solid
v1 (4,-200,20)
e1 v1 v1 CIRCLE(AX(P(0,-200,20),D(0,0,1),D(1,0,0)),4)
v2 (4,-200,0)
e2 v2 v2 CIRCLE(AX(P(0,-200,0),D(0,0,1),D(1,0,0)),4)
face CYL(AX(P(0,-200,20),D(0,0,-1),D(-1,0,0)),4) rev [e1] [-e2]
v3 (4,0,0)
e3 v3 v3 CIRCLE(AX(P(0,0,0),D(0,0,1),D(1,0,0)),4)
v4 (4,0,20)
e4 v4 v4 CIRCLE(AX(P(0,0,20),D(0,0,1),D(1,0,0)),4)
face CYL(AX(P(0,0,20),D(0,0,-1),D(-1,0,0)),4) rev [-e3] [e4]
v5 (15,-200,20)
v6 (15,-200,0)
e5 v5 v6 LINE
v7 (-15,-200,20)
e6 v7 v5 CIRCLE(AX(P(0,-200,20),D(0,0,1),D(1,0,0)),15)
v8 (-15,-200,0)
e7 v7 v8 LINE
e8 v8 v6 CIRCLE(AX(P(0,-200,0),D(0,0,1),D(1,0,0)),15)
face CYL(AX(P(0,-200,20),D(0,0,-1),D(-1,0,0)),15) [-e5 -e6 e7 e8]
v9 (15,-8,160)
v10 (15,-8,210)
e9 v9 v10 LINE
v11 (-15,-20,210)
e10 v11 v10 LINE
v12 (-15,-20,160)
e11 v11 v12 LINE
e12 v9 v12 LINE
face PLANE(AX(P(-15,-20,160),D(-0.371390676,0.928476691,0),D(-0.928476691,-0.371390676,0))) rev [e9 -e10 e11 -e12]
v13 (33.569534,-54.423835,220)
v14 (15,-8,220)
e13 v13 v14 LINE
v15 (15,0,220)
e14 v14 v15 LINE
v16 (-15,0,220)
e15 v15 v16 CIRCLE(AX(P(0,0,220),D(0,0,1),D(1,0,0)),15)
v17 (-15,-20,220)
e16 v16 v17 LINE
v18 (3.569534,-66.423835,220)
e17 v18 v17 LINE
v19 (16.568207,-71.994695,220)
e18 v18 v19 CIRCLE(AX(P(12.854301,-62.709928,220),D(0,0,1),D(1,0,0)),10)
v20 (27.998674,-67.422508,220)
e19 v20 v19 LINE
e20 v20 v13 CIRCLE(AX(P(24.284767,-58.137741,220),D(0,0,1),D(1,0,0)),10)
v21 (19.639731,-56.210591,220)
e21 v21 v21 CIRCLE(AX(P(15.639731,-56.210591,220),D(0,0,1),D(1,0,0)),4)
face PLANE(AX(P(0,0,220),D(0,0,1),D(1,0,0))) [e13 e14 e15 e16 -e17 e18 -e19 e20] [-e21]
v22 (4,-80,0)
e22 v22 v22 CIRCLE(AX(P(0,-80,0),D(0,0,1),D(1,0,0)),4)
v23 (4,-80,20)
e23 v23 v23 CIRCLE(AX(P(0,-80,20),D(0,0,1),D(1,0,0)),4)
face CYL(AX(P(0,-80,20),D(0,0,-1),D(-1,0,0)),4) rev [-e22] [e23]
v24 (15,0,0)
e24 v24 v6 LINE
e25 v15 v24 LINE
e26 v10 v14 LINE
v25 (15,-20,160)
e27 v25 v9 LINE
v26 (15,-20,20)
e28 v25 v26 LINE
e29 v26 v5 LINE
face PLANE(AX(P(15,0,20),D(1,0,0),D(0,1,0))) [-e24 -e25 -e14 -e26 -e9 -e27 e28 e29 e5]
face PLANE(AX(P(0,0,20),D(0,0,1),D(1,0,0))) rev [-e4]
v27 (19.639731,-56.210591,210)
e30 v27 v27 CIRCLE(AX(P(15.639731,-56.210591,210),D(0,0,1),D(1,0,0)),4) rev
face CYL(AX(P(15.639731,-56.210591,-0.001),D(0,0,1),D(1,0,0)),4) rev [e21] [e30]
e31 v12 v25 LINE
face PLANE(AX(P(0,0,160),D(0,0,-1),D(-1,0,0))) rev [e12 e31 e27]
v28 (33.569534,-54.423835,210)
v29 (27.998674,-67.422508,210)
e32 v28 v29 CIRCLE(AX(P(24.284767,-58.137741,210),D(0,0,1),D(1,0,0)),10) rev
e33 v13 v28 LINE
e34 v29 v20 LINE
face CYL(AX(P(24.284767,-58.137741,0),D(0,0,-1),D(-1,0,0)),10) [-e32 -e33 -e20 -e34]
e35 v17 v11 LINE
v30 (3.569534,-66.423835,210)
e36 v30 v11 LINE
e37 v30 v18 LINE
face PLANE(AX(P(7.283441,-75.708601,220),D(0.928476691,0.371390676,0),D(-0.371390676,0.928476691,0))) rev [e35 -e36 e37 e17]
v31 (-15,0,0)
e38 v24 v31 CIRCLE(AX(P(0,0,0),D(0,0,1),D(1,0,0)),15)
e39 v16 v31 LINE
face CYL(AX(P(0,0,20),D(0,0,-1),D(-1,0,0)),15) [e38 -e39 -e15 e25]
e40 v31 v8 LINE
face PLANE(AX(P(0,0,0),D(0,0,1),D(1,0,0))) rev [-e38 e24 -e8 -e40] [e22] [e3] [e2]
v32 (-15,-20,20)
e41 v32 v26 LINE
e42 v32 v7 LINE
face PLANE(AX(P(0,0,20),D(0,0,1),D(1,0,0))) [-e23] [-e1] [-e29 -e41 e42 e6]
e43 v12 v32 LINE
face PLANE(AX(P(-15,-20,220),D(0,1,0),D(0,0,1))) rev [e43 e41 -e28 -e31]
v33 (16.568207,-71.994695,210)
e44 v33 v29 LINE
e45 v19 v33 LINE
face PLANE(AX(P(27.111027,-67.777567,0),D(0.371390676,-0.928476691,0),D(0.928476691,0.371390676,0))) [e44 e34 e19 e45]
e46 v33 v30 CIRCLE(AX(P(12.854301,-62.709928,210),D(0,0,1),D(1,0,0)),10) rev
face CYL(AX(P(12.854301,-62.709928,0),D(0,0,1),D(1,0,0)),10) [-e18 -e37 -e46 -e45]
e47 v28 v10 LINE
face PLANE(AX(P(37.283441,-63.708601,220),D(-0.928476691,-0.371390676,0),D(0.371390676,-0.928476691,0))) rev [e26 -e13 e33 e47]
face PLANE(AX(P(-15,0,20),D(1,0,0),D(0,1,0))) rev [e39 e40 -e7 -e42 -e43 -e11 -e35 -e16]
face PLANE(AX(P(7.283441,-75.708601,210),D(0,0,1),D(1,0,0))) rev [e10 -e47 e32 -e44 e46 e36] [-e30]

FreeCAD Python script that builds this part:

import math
import FreeCAD as App
import Part
import Sketcher

V = App.Vector


def edges_at(feature, points):
    """Names of the edges that pass closest to the given points."""
    edges = feature.Shape.Edges
    near = lambda p: min(range(len(edges)), key=lambda i: edges[i].distToShape(Part.Vertex(*p))[0])
    return sorted({f"Edge{near(p) + 1}" for p in points})


def add_polygon(sketch, points):
    """Adds a closed chain of lines whose ends are joined by coincident constraints."""
    first, n = sketch.GeometryCount, len(points)
    for a, b in zip(points, points[1:] + points[:1]):
        sketch.addGeometry(Part.LineSegment(App.Vector(*a, 0), App.Vector(*b, 0)), False)
    for i in range(n):
        sketch.addConstraint(Sketcher.Constraint("Coincident", first + i, 2, first + (i + 1) % n, 1))

doc = App.newDocument("Part")
body = doc.addObject("PartDesign::Body", "Body")

# Sketch on XY plane
sketch1 = doc.addObject("Sketcher::SketchObject", "Sketch")
body.addObject(sketch1)
sketch1.AttachmentSupport = (doc.XY_Plane, [""])
sketch1.MapMode = "FlatFace"
sketch1.addGeometry(Part.ArcOfCircle(Part.Circle(V(0, 0, 0), V(0, 0, 1), 15), math.radians(0), math.radians(180)), False)
sketch1.addGeometry(Part.LineSegment(V(-15, 0, 0), V(-15, -200, 0)), False)
sketch1.addGeometry(Part.ArcOfCircle(Part.Circle(V(0, -200, 0), V(0, 0, 1), 15), math.radians(180), math.radians(360)), False)
sketch1.addGeometry(Part.LineSegment(V(15, -200, 0), V(15, 0, 0)), False)
sketch1.addGeometry(Part.Circle(V(0, 0, 0), V(0, 0, 1), 4), False)
sketch1.addGeometry(Part.Circle(V(0, -80, 0), V(0, 0, 1), 4), False)
sketch1.addGeometry(Part.Circle(V(0, -200, 0), V(0, 0, 1), 4), False)
sketch1.addConstraint(Sketcher.Constraint("Tangent", 0, 2, 1, 1))
sketch1.addConstraint(Sketcher.Constraint("Tangent", 1, 2, 2, 1))
sketch1.addConstraint(Sketcher.Constraint("Tangent", 2, 2, 3, 1))
sketch1.addConstraint(Sketcher.Constraint("Tangent", 3, 2, 0, 1))
sketch1.addConstraint(Sketcher.Constraint("Vertical", 1))
sketch1.addConstraint(Sketcher.Constraint("Vertical", 3))
sketch1.addConstraint(Sketcher.Constraint("Coincident", 0, 3, -1, 1))
sketch1.addConstraint(Sketcher.Constraint("Coincident", 4, 3, -1, 1))
sketch1.addConstraint(Sketcher.Constraint("Coincident", 6, 3, 2, 3))
sketch1.addConstraint(Sketcher.Constraint("Equal", 4, 5))
sketch1.addConstraint(Sketcher.Constraint("Equal", 5, 6))
sketch1.addConstraint(Sketcher.Constraint("PointOnObject", 5, 3, -2))
sketch1.addConstraint(Sketcher.Constraint("Diameter", 4, 8.0))
sketch1.addConstraint(Sketcher.Constraint("Radius", 0, 15.0))
sketch1.addConstraint(Sketcher.Constraint("DistanceY", 1, 2, 1, 1, 200.0))
sketch1.addConstraint(Sketcher.Constraint("DistanceY", 5, 3, -1, 1, 80.0))
pad1 = doc.addObject("PartDesign::Pad", "Pad")
body.addObject(pad1)
pad1.Profile = sketch1
pad1.Length = 20

# Sketch on XY plane
sketch2 = doc.addObject("Sketcher::SketchObject", "Sketch001")
body.addObject(sketch2)
sketch2.AttachmentSupport = (doc.XY_Plane, [""])
sketch2.MapMode = "FlatFace"
sketch2.AttachmentOffset = App.Placement(V(0, 0, 20), App.Rotation())
sketch2.addGeometry(Part.LineSegment(V(-15, 0, 0), V(-15, -20, 0)), False)
sketch2.addGeometry(Part.LineSegment(V(-15, -20, 0), V(15, -20, 0)), False)
sketch2.addGeometry(Part.LineSegment(V(15, -20, 0), V(15, 0, 0)), False)
sketch2.addGeometry(Part.ArcOfCircle(Part.Circle(V(0, 0, 0), V(0, 0, 1), 15), math.radians(0), math.radians(180)), False)
sketch2.addConstraint(Sketcher.Constraint("Coincident", 0, 2, 1, 1))
sketch2.addConstraint(Sketcher.Constraint("Coincident", 1, 2, 2, 1))
sketch2.addConstraint(Sketcher.Constraint("Tangent", 2, 2, 3, 1))
sketch2.addConstraint(Sketcher.Constraint("Tangent", 3, 2, 0, 1))
sketch2.addConstraint(Sketcher.Constraint("Vertical", 0))
sketch2.addConstraint(Sketcher.Constraint("Horizontal", 1))
sketch2.addConstraint(Sketcher.Constraint("Vertical", 2))
sketch2.addConstraint(Sketcher.Constraint("Coincident", 3, 3, -1, 1))
sketch2.addConstraint(Sketcher.Constraint("Radius", 3, 15.0))
sketch2.addConstraint(Sketcher.Constraint("DistanceY", 0, 2, 0, 1, 20.0))
pad2 = doc.addObject("PartDesign::Pad", "Pad001")
body.addObject(pad2)
pad2.Profile = sketch2
pad2.Length = 200

# Sketch on XY plane
sketch3 = doc.addObject("Sketcher::SketchObject", "Sketch002")
body.addObject(sketch3)
sketch3.AttachmentSupport = (doc.XY_Plane, [""])
sketch3.MapMode = "FlatFace"
sketch3.AttachmentOffset = App.Placement(V(0, 0, 220), App.Rotation())
add_polygon(sketch3, [(15, -8), (-15, -20), (15, -20)])  # lines 0-2
sketch3.addConstraint(Sketcher.Constraint("Horizontal", 1))
sketch3.addConstraint(Sketcher.Constraint("Vertical", 2))
sketch3.addConstraint(Sketcher.Constraint("DistanceX", 1, 1, 1, 2, 30.0))
sketch3.addConstraint(Sketcher.Constraint("DistanceY", 2, 1, 2, 2, 12.0))
sketch3.addConstraint(Sketcher.Constraint("DistanceX", 0, 2, -1, 1, 15.0))
sketch3.addConstraint(Sketcher.Constraint("DistanceY", 0, 2, -1, 1, 20.0))
pocket1 = doc.addObject("PartDesign::Pocket", "Pocket")
body.addObject(pocket1)
pocket1.Profile = sketch3
pocket1.Length = 60

# Sketch on an angled plane
sketch4 = doc.addObject("Sketcher::SketchObject", "Sketch003")
body.addObject(sketch4)
sketch4.Placement = App.Placement(V(-1.07285, -14.42914, 0), App.Rotation(V(0.928476691, 0.371390676, 0), V(0, 0, 1), V(0.371390676, -0.928476691, 0), "ZXY"))
add_polygon(sketch4, [(-15, 220), (-15, 210), (17, 210), (17, 220)])  # lines 0-3
sketch4.addConstraint(Sketcher.Constraint("Vertical", 0))
sketch4.addConstraint(Sketcher.Constraint("Horizontal", 1))
sketch4.addConstraint(Sketcher.Constraint("Vertical", 2))
sketch4.addConstraint(Sketcher.Constraint("Horizontal", 3))
sketch4.addConstraint(Sketcher.Constraint("DistanceY", 0, 2, 0, 1, 10.0))
sketch4.addConstraint(Sketcher.Constraint("DistanceX", 0, 2, -1, 1, 15.0))
sketch4.addConstraint(Sketcher.Constraint("DistanceY", -1, 1, 0, 2, 210.0))
sketch4.addConstraint(Sketcher.Constraint("DistanceX", 1, 1, 1, 2, 32.310989))
pad3 = doc.addObject("PartDesign::Pad", "Pad002")
body.addObject(pad3)
pad3.Profile = sketch4
pad3.Length = 60
doc.recompute()

fillet = doc.addObject("PartDesign::Fillet", "Fillet")
body.addObject(fillet)
fillet.Base = (pad3, edges_at(pad3, [(7.283, -75.709, 215), (37.283, -63.709, 215)]))
fillet.Radius = 10

# Sketch on XY plane
sketch5 = doc.addObject("Sketcher::SketchObject", "Sketch004")
body.addObject(sketch5)
sketch5.AttachmentSupport = (doc.XY_Plane, [""])
sketch5.MapMode = "FlatFace"
sketch5.AttachmentOffset = App.Placement(V(0, 0, 220), App.Rotation())
sketch5.addGeometry(Part.Circle(V(15.6, -56.2, 0), V(0, 0, 1), 4), False)
sketch5.addConstraint(Sketcher.Constraint("Diameter", 0, 8.0))
sketch5.addConstraint(Sketcher.Constraint("DistanceX", -1, 1, 0, 3, 15.639731))
sketch5.addConstraint(Sketcher.Constraint("DistanceY", 0, 3, -1, 1, 56.210591))
pocket2 = doc.addObject("PartDesign::Pocket", "Pocket001")
body.addObject(pocket2)
pocket2.Profile = sketch5
pocket2.Type = "UpToFirst"

doc.recompute()
